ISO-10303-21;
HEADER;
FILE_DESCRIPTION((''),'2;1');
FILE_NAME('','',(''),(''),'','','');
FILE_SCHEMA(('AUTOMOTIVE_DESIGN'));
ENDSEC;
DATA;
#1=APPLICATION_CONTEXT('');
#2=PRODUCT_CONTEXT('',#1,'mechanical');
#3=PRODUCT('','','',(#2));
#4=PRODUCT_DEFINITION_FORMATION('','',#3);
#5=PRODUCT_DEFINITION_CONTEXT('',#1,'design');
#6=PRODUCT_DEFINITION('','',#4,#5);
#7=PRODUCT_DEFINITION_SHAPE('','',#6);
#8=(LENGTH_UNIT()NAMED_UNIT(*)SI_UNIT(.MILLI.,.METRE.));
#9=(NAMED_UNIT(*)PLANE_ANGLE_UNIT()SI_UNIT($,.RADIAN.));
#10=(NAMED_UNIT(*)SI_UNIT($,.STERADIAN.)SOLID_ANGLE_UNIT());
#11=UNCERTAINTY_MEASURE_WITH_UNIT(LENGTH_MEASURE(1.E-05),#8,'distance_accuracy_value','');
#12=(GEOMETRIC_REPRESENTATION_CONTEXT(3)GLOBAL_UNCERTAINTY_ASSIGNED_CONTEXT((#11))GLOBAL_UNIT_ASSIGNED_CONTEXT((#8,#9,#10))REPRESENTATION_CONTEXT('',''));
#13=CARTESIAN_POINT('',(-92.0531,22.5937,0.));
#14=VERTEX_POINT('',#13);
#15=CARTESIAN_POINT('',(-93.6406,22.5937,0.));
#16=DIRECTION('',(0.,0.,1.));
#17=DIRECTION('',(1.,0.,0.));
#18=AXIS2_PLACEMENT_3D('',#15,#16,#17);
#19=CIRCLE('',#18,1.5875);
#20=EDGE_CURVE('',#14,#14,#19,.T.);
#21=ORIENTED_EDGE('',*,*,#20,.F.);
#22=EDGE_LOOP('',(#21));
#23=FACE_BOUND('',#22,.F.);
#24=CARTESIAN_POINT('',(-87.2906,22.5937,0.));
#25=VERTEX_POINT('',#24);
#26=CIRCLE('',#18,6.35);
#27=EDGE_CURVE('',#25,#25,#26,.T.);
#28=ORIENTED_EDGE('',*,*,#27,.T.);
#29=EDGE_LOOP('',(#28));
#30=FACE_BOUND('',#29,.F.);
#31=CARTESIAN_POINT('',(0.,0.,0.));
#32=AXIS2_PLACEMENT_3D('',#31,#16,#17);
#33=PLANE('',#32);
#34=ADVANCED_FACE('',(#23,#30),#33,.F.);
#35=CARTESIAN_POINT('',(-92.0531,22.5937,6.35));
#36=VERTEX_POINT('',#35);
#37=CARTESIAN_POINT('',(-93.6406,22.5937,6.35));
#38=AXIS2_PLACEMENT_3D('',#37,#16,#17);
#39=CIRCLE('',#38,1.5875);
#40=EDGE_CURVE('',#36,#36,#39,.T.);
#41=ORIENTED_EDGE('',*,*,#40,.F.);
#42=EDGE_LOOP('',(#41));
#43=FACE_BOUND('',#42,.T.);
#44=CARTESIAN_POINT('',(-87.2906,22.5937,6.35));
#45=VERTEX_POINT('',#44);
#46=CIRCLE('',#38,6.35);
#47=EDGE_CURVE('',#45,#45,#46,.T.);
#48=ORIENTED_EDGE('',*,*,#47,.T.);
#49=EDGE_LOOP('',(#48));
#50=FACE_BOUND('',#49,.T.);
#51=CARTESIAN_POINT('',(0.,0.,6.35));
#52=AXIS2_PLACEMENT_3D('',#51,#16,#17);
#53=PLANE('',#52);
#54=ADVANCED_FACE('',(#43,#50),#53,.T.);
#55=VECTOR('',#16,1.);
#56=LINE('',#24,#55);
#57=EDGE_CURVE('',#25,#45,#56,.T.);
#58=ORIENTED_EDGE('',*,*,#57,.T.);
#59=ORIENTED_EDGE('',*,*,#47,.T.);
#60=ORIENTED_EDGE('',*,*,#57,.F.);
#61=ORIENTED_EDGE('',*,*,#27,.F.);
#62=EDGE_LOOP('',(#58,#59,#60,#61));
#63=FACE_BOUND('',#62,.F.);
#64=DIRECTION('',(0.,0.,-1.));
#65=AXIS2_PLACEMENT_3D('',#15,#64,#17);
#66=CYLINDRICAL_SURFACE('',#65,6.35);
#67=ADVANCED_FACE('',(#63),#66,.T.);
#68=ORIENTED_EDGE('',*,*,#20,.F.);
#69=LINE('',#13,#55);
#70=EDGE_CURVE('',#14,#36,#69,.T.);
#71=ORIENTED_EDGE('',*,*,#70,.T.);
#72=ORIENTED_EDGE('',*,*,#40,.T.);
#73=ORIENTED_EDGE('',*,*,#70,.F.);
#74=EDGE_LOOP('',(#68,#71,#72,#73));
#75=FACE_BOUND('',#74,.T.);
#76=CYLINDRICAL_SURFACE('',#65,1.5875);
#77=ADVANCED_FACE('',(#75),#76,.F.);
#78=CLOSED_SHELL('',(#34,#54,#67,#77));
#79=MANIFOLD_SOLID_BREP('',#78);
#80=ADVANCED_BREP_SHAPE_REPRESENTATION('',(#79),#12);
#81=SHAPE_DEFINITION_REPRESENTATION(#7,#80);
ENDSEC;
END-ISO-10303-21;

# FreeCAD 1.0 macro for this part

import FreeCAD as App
import Part
import Sketcher
from FreeCAD import Vector
Q = App.Units.Quantity

doc = App.newDocument("Part")
params = doc.addObject("Spreadsheet::Sheet", "Params")
for row, (alias, value) in enumerate([
    ("sketch1_diameter", "0.5 in"),
    ("sketch1_diameter2", "0.125 in"),
    ("pad1_length", "0.25 in"),
], start=1):
    params.set(f"A{row}", alias)
    params.set(f"B{row}", "=" + value)
    params.setAlias(f"B{row}", alias)

body = doc.addObject("PartDesign::Body", "Body")

# Sketch on XY plane
sketch1 = body.newObject("Sketcher::SketchObject", "Sketch")
sketch1.AttachmentSupport = (doc.getObject("XY_Plane"), [""])
sketch1.MapMode = "FlatFace"
sketch1.addGeometry([
    Part.Circle(Vector(-93.6, 22.6, 0), Vector(0, 0, 1), 6.3),
    Part.Circle(Vector(-93.6, 22.6, 0), Vector(0, 0, 1), 1.6),
], False)
sketch1.addConstraint([
    Sketcher.Constraint("Coincident", 1, 3, 0, 3),
    Sketcher.Constraint("Diameter", 0, Q("0.5 in")),
    Sketcher.Constraint("Diameter", 1, Q("0.125 in")),
    Sketcher.Constraint("DistanceX", 0, 3, -1, 1, 93.6406),
    Sketcher.Constraint("DistanceY", -1, 1, 0, 3, 22.5937),
])
sketch1.setExpression("Constraints[1]", "Params.sketch1_diameter")
sketch1.setExpression("Constraints[2]", "Params.sketch1_diameter2")
pad1 = body.newObject("PartDesign::Pad", "Pad")
pad1.Profile = sketch1
pad1.setExpression("Length", "Params.pad1_length")

doc.recompute()
